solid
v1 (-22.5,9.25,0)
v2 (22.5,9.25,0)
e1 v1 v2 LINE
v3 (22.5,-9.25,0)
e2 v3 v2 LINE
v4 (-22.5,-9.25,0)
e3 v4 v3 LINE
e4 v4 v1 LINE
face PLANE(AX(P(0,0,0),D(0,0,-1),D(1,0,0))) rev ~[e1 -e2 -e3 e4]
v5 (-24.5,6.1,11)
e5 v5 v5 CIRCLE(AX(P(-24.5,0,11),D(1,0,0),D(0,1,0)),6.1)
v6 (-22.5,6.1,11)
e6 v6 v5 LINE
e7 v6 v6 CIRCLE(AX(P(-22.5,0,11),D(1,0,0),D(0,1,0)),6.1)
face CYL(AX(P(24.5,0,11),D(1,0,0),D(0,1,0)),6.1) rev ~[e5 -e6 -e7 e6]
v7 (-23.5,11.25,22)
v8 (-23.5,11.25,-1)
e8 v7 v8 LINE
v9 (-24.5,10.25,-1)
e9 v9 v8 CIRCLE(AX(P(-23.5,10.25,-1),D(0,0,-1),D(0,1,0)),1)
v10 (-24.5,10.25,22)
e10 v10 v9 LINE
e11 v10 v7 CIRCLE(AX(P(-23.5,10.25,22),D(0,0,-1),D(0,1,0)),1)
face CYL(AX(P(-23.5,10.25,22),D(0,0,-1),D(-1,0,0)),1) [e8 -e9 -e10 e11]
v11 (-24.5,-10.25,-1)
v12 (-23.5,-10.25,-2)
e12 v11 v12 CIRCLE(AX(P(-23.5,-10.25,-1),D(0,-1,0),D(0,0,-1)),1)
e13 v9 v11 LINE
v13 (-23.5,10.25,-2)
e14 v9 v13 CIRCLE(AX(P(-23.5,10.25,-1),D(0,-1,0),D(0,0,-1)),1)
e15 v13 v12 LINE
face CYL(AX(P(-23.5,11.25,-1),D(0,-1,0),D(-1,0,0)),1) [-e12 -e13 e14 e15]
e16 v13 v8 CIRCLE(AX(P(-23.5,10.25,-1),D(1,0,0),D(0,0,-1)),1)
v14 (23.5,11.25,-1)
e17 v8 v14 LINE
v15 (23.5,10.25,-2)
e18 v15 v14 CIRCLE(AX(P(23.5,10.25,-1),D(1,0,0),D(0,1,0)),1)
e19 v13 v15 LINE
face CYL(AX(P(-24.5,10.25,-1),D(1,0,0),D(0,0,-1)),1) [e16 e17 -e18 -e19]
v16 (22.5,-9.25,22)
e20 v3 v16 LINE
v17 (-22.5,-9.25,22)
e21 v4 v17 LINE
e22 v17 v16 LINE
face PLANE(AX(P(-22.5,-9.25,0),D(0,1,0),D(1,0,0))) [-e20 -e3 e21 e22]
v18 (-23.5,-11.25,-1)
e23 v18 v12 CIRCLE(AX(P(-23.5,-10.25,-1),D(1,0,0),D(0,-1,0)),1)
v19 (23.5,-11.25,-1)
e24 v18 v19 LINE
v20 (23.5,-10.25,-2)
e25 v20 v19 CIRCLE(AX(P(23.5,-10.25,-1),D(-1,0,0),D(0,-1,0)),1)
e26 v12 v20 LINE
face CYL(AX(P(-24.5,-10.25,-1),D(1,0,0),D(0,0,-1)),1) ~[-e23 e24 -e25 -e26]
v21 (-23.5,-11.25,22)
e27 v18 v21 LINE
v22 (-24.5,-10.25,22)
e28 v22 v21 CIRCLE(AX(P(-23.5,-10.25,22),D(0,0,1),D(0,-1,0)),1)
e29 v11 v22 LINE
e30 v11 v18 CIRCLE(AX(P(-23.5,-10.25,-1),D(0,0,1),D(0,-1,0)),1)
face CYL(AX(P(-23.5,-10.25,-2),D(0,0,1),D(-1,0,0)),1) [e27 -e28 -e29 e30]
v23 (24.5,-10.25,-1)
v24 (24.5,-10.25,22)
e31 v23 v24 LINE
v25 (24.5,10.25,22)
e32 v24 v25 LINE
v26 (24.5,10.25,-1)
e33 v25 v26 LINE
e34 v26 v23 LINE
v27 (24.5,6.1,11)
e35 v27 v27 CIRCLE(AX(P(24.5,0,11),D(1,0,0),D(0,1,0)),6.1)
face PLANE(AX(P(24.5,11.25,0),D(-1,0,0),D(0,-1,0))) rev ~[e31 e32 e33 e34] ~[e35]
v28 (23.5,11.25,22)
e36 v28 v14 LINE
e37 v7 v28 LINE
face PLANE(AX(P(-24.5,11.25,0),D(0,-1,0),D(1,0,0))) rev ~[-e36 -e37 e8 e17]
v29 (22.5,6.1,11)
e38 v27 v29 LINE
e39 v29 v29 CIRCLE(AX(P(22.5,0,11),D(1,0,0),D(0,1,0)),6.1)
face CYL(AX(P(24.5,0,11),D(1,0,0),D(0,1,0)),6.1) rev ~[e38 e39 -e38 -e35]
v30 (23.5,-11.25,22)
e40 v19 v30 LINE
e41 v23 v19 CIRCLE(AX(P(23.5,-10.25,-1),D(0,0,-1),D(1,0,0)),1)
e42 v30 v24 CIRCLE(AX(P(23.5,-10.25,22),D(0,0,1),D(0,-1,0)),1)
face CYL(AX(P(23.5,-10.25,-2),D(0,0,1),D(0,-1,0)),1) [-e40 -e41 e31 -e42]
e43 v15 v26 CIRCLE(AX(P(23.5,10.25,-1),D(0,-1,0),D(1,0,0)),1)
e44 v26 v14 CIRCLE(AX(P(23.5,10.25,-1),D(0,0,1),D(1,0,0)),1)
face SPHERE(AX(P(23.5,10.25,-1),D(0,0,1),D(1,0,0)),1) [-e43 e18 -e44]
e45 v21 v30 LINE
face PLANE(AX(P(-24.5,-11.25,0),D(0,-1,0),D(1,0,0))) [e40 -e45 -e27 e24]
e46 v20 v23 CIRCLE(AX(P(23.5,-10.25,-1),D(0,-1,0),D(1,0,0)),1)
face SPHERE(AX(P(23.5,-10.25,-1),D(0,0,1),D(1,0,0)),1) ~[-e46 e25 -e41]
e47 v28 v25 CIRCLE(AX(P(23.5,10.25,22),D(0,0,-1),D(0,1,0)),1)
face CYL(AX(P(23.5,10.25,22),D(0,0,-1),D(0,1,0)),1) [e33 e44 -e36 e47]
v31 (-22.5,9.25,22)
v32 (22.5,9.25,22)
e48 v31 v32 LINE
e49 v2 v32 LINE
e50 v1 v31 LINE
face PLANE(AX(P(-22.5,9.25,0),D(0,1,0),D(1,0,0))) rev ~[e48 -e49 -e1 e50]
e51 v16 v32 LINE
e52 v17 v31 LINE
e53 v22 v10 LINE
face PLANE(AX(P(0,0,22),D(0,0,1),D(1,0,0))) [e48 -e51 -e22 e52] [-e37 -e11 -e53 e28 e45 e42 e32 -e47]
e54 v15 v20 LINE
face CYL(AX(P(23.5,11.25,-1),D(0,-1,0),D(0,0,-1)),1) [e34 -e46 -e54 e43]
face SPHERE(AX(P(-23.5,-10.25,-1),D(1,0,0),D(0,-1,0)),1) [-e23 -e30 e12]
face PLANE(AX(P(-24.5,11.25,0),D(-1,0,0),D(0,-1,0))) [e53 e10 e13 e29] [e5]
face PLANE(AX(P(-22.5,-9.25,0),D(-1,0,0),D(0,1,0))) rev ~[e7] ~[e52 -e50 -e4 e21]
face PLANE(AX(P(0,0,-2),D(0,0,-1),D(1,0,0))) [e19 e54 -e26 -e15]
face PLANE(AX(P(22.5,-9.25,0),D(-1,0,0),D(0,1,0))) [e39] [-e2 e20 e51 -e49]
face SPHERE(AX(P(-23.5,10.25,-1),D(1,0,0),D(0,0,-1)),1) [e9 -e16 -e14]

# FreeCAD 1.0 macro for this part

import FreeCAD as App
import Part
import Sketcher
from FreeCAD import Vector


def edges_at(feature, points):
    """Names of the edges that pass closest to the given points."""
    edges = feature.Shape.Edges
    near = lambda p: min(range(len(edges)), key=lambda i: edges[i].distToShape(Part.Vertex(*p))[0])
    return sorted({f"Edge{near(p) + 1}" for p in points})


def add_polygon(sketch, points):
    """Adds a closed chain of lines whose ends are joined by coincident constraints."""
    first, n = sketch.GeometryCount, len(points)
    for a, b in zip(points, points[1:] + points[:1]):
        sketch.addGeometry(Part.LineSegment(App.Vector(*a, 0), App.Vector(*b, 0)), False)
    for i in range(n):
        sketch.addConstraint(Sketcher.Constraint("Coincident", first + i, 2, first + (i + 1) % n, 1))

doc = App.newDocument("Part")
body = doc.addObject("PartDesign::Body", "Body")

# Sketch on XY plane
sketch1 = body.newObject("Sketcher::SketchObject", "Sketch")
sketch1.AttachmentSupport = (doc.getObject("XY_Plane"), [""])
sketch1.MapMode = "FlatFace"
add_polygon(sketch1, [(-24, 11), (-24, -11), (24, -11), (24, 11)])  # lines 0-3
add_polygon(sketch1, [(22, -9), (-22, -9), (-22, 9), (22, 9)])  # lines 4-7
sketch1.addConstraint([
    Sketcher.Constraint("Vertical", 0),
    Sketcher.Constraint("Horizontal", 1),
    Sketcher.Constraint("Vertical", 2),
    Sketcher.Constraint("Horizontal", 3),
    Sketcher.Constraint("Horizontal", 4),
    Sketcher.Constraint("Vertical", 5),
    Sketcher.Constraint("Horizontal", 6),
    Sketcher.Constraint("Vertical", 7),
    Sketcher.Constraint("Symmetric", 0, 2, 2, 2, -1, 1),
    Sketcher.Constraint("Symmetric", 4, 2, 6, 2, -1, 1),
    Sketcher.Constraint("DistanceX", 1, 1, 1, 2, 49.0),
    Sketcher.Constraint("DistanceX", 4, 2, 4, 1, 45.0),
    Sketcher.Constraint("DistanceY", 0, 2, 0, 1, 22.5),
    Sketcher.Constraint("DistanceY", 5, 1, 5, 2, 18.5),
])
pad1 = body.newObject("PartDesign::Pad", "Pad")
pad1.Profile = sketch1
pad1.Length = 22

# Sketch on XY plane
sketch2 = body.newObject("Sketcher::SketchObject", "Sketch001")
sketch2.AttachmentSupport = (doc.getObject("XY_Plane"), [""])
sketch2.MapMode = "FlatFace"
add_polygon(sketch2, [(-24, -11), (-24, 11), (24, 11), (24, -11)])  # lines 0-3
sketch2.addConstraint([
    Sketcher.Constraint("Vertical", 0),
    Sketcher.Constraint("Horizontal", 1),
    Sketcher.Constraint("Vertical", 2),
    Sketcher.Constraint("Horizontal", 3),
    Sketcher.Constraint("Symmetric", 0, 2, 2, 2, -1, 1),
    Sketcher.Constraint("DistanceX", 1, 1, 1, 2, 49.0),
    Sketcher.Constraint("DistanceY", 0, 1, 0, 2, 22.5),
])
pad2 = body.newObject("PartDesign::Pad", "Pad001")
pad2.Profile = sketch2
pad2.Length = 2
pad2.Reversed = True

# Sketch on YZ plane
sketch3 = body.newObject("Sketcher::SketchObject", "Sketch002")
sketch3.AttachmentSupport = (doc.getObject("YZ_Plane"), [""])
sketch3.MapMode = "FlatFace"
sketch3.AttachmentOffset = App.Placement(Vector(0, 0, 24.5), App.Rotation())
sketch3.addGeometry(Part.Circle(Vector(0, 11, 0), Vector(0, 0, 1), 6), False)
sketch3.addConstraint([
    Sketcher.Constraint("PointOnObject", 0, 3, -2),
    Sketcher.Constraint("Diameter", 0, 12.2),
    Sketcher.Constraint("DistanceY", -1, 1, 0, 3, 11.0),
])
pocket1 = body.newObject("PartDesign::Pocket", "Pocket")
pocket1.Profile = sketch3
pocket1.Type = "ThroughAll"
doc.recompute()

fillet = body.newObject("PartDesign::Fillet", "Fillet")
fillet.Base = (pocket1, edges_at(pocket1, [
    (24.5, -11.25, 10),
    (24.5, 11.25, 10),
    (24.5, 0, -2),
    (0, 11.25, -2),
    (0, -11.25, -2),
    (-24.5, -11.25, 10),
    (-24.5, 0, -2),
    (-24.5, 11.25, 10),
]))
fillet.Radius = 1

doc.recompute()
